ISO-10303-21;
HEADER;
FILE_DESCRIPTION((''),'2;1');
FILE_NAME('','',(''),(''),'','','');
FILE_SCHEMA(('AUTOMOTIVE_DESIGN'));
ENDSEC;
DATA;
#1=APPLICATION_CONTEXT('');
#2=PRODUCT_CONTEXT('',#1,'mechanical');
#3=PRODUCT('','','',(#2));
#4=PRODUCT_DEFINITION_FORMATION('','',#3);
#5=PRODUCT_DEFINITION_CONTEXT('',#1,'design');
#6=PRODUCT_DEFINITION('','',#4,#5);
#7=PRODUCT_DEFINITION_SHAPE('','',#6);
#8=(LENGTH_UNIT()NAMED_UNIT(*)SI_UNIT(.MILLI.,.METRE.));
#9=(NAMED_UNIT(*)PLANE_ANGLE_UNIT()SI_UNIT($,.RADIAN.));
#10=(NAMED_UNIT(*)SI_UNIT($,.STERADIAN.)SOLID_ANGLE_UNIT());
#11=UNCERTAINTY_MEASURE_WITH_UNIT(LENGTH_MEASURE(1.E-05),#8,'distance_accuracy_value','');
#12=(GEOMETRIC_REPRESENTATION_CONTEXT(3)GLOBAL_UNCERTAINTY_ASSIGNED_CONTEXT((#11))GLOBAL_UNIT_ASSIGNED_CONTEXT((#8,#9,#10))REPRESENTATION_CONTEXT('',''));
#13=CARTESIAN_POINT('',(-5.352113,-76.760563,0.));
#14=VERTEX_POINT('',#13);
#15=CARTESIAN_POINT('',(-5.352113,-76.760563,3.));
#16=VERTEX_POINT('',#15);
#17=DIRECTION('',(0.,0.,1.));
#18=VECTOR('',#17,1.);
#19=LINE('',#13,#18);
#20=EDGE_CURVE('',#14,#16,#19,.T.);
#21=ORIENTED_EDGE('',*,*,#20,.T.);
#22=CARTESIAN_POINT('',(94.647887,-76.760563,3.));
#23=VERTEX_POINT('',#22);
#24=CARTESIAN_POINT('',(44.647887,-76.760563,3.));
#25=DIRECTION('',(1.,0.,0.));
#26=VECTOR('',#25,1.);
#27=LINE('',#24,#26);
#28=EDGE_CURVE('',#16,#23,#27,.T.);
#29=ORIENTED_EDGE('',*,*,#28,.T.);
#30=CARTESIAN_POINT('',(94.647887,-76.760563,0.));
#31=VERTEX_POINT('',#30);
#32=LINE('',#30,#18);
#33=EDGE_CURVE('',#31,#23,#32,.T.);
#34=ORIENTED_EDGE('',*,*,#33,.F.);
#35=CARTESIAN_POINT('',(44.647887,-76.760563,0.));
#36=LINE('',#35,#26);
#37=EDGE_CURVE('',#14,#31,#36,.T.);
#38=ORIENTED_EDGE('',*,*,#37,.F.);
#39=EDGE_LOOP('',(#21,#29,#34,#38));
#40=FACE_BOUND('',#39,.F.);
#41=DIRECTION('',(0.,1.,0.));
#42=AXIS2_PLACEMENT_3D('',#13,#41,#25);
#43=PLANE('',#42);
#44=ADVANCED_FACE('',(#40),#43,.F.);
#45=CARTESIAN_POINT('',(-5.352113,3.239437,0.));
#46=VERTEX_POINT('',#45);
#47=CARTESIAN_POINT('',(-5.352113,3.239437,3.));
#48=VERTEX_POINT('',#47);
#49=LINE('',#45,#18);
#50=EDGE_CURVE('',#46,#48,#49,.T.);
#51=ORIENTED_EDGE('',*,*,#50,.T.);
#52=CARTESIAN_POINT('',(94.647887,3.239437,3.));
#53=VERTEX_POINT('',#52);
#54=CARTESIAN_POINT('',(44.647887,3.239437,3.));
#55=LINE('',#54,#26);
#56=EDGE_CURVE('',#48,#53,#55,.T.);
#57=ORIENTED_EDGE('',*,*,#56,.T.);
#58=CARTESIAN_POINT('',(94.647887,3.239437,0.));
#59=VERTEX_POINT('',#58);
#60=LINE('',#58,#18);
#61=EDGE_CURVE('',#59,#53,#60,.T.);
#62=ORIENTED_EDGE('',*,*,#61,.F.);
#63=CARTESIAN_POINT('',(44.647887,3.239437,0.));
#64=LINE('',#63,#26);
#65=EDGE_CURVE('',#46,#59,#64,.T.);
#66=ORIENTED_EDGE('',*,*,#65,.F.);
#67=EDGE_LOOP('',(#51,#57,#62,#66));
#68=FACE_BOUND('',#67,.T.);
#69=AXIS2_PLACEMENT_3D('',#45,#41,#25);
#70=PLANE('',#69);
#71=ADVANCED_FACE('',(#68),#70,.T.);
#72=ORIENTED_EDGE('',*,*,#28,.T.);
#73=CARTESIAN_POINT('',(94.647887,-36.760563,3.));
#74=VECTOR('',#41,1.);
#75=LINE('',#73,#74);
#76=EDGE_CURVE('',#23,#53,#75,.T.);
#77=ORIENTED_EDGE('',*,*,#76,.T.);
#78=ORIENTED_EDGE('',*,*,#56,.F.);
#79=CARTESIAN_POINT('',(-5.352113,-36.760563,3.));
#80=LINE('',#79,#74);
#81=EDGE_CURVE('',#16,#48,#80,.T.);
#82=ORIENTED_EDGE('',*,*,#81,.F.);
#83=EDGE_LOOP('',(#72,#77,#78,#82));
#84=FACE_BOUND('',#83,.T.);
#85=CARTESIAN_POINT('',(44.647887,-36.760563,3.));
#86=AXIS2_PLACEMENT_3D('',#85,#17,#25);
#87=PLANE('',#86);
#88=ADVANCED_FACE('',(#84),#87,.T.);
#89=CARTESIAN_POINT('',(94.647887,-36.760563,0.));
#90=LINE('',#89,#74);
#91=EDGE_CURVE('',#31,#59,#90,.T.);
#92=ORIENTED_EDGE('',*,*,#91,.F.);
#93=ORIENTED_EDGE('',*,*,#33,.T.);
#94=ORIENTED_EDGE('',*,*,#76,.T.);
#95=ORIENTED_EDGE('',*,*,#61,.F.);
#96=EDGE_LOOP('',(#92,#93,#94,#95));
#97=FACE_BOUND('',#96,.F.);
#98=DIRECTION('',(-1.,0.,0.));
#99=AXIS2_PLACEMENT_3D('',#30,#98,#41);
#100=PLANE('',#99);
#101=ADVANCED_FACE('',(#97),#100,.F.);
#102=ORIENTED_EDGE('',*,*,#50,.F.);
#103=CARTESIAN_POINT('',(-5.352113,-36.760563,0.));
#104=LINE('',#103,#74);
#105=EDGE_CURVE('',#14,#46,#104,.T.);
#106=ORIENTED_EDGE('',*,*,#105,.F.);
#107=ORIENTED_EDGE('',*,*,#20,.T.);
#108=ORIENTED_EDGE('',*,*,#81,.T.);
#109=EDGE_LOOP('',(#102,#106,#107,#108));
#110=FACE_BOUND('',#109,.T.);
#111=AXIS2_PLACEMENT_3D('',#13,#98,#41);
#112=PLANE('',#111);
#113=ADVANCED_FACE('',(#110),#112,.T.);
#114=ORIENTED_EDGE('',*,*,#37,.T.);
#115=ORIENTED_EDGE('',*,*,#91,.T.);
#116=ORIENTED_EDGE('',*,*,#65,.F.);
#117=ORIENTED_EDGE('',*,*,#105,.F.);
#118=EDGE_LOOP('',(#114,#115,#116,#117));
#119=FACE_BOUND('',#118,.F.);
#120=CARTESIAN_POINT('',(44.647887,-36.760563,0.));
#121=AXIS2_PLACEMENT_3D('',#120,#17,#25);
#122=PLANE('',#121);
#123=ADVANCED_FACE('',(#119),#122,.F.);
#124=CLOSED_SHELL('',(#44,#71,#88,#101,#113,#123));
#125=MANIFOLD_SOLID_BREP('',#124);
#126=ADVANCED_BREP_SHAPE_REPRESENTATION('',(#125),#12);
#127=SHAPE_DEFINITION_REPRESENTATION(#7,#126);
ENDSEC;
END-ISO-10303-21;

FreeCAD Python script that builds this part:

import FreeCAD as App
import Part
import Sketcher

V = App.Vector


def add_polygon(sketch, points):
    """Adds a closed chain of lines whose ends are joined by coincident constraints."""
    first, n = sketch.GeometryCount, len(points)
    for a, b in zip(points, points[1:] + points[:1]):
        sketch.addGeometry(Part.LineSegment(App.Vector(*a, 0), App.Vector(*b, 0)), False)
    for i in range(n):
        sketch.addConstraint(Sketcher.Constraint("Coincident", first + i, 2, first + (i + 1) % n, 1))

doc = App.newDocument("Part")
body = doc.addObject("PartDesign::Body", "Body")

# Sketch on XY plane
sketch1 = body.newObject("Sketcher::SketchObject", "Sketch")
sketch1.AttachmentSupport = (doc.getObject("XY_Plane"), [""])
sketch1.MapMode = "FlatFace"
add_polygon(sketch1, [(-5.352113, 3.239437), (-5.352113, -76.760563), (94.647887, -76.760563), (94.647887, 3.239437)])  # lines 0-3
sketch1.addConstraint([
    Sketcher.Constraint("Vertical", 0),
    Sketcher.Constraint("Horizontal", 1),
    Sketcher.Constraint("Vertical", 2),
    Sketcher.Constraint("Horizontal", 3),
    Sketcher.Constraint("DistanceX", 1, 1, 1, 2, 100.0),
    Sketcher.Constraint("DistanceY", 0, 2, 0, 1, 80.0),
    Sketcher.Constraint("DistanceX", 0, 2, -1, 1, 5.352113),
    Sketcher.Constraint("DistanceY", 0, 2, -1, 1, 76.760563),
])
pad1 = body.newObject("PartDesign::Pad", "Pad")
pad1.Profile = sketch1
pad1.Length = 3

doc.recompute()
